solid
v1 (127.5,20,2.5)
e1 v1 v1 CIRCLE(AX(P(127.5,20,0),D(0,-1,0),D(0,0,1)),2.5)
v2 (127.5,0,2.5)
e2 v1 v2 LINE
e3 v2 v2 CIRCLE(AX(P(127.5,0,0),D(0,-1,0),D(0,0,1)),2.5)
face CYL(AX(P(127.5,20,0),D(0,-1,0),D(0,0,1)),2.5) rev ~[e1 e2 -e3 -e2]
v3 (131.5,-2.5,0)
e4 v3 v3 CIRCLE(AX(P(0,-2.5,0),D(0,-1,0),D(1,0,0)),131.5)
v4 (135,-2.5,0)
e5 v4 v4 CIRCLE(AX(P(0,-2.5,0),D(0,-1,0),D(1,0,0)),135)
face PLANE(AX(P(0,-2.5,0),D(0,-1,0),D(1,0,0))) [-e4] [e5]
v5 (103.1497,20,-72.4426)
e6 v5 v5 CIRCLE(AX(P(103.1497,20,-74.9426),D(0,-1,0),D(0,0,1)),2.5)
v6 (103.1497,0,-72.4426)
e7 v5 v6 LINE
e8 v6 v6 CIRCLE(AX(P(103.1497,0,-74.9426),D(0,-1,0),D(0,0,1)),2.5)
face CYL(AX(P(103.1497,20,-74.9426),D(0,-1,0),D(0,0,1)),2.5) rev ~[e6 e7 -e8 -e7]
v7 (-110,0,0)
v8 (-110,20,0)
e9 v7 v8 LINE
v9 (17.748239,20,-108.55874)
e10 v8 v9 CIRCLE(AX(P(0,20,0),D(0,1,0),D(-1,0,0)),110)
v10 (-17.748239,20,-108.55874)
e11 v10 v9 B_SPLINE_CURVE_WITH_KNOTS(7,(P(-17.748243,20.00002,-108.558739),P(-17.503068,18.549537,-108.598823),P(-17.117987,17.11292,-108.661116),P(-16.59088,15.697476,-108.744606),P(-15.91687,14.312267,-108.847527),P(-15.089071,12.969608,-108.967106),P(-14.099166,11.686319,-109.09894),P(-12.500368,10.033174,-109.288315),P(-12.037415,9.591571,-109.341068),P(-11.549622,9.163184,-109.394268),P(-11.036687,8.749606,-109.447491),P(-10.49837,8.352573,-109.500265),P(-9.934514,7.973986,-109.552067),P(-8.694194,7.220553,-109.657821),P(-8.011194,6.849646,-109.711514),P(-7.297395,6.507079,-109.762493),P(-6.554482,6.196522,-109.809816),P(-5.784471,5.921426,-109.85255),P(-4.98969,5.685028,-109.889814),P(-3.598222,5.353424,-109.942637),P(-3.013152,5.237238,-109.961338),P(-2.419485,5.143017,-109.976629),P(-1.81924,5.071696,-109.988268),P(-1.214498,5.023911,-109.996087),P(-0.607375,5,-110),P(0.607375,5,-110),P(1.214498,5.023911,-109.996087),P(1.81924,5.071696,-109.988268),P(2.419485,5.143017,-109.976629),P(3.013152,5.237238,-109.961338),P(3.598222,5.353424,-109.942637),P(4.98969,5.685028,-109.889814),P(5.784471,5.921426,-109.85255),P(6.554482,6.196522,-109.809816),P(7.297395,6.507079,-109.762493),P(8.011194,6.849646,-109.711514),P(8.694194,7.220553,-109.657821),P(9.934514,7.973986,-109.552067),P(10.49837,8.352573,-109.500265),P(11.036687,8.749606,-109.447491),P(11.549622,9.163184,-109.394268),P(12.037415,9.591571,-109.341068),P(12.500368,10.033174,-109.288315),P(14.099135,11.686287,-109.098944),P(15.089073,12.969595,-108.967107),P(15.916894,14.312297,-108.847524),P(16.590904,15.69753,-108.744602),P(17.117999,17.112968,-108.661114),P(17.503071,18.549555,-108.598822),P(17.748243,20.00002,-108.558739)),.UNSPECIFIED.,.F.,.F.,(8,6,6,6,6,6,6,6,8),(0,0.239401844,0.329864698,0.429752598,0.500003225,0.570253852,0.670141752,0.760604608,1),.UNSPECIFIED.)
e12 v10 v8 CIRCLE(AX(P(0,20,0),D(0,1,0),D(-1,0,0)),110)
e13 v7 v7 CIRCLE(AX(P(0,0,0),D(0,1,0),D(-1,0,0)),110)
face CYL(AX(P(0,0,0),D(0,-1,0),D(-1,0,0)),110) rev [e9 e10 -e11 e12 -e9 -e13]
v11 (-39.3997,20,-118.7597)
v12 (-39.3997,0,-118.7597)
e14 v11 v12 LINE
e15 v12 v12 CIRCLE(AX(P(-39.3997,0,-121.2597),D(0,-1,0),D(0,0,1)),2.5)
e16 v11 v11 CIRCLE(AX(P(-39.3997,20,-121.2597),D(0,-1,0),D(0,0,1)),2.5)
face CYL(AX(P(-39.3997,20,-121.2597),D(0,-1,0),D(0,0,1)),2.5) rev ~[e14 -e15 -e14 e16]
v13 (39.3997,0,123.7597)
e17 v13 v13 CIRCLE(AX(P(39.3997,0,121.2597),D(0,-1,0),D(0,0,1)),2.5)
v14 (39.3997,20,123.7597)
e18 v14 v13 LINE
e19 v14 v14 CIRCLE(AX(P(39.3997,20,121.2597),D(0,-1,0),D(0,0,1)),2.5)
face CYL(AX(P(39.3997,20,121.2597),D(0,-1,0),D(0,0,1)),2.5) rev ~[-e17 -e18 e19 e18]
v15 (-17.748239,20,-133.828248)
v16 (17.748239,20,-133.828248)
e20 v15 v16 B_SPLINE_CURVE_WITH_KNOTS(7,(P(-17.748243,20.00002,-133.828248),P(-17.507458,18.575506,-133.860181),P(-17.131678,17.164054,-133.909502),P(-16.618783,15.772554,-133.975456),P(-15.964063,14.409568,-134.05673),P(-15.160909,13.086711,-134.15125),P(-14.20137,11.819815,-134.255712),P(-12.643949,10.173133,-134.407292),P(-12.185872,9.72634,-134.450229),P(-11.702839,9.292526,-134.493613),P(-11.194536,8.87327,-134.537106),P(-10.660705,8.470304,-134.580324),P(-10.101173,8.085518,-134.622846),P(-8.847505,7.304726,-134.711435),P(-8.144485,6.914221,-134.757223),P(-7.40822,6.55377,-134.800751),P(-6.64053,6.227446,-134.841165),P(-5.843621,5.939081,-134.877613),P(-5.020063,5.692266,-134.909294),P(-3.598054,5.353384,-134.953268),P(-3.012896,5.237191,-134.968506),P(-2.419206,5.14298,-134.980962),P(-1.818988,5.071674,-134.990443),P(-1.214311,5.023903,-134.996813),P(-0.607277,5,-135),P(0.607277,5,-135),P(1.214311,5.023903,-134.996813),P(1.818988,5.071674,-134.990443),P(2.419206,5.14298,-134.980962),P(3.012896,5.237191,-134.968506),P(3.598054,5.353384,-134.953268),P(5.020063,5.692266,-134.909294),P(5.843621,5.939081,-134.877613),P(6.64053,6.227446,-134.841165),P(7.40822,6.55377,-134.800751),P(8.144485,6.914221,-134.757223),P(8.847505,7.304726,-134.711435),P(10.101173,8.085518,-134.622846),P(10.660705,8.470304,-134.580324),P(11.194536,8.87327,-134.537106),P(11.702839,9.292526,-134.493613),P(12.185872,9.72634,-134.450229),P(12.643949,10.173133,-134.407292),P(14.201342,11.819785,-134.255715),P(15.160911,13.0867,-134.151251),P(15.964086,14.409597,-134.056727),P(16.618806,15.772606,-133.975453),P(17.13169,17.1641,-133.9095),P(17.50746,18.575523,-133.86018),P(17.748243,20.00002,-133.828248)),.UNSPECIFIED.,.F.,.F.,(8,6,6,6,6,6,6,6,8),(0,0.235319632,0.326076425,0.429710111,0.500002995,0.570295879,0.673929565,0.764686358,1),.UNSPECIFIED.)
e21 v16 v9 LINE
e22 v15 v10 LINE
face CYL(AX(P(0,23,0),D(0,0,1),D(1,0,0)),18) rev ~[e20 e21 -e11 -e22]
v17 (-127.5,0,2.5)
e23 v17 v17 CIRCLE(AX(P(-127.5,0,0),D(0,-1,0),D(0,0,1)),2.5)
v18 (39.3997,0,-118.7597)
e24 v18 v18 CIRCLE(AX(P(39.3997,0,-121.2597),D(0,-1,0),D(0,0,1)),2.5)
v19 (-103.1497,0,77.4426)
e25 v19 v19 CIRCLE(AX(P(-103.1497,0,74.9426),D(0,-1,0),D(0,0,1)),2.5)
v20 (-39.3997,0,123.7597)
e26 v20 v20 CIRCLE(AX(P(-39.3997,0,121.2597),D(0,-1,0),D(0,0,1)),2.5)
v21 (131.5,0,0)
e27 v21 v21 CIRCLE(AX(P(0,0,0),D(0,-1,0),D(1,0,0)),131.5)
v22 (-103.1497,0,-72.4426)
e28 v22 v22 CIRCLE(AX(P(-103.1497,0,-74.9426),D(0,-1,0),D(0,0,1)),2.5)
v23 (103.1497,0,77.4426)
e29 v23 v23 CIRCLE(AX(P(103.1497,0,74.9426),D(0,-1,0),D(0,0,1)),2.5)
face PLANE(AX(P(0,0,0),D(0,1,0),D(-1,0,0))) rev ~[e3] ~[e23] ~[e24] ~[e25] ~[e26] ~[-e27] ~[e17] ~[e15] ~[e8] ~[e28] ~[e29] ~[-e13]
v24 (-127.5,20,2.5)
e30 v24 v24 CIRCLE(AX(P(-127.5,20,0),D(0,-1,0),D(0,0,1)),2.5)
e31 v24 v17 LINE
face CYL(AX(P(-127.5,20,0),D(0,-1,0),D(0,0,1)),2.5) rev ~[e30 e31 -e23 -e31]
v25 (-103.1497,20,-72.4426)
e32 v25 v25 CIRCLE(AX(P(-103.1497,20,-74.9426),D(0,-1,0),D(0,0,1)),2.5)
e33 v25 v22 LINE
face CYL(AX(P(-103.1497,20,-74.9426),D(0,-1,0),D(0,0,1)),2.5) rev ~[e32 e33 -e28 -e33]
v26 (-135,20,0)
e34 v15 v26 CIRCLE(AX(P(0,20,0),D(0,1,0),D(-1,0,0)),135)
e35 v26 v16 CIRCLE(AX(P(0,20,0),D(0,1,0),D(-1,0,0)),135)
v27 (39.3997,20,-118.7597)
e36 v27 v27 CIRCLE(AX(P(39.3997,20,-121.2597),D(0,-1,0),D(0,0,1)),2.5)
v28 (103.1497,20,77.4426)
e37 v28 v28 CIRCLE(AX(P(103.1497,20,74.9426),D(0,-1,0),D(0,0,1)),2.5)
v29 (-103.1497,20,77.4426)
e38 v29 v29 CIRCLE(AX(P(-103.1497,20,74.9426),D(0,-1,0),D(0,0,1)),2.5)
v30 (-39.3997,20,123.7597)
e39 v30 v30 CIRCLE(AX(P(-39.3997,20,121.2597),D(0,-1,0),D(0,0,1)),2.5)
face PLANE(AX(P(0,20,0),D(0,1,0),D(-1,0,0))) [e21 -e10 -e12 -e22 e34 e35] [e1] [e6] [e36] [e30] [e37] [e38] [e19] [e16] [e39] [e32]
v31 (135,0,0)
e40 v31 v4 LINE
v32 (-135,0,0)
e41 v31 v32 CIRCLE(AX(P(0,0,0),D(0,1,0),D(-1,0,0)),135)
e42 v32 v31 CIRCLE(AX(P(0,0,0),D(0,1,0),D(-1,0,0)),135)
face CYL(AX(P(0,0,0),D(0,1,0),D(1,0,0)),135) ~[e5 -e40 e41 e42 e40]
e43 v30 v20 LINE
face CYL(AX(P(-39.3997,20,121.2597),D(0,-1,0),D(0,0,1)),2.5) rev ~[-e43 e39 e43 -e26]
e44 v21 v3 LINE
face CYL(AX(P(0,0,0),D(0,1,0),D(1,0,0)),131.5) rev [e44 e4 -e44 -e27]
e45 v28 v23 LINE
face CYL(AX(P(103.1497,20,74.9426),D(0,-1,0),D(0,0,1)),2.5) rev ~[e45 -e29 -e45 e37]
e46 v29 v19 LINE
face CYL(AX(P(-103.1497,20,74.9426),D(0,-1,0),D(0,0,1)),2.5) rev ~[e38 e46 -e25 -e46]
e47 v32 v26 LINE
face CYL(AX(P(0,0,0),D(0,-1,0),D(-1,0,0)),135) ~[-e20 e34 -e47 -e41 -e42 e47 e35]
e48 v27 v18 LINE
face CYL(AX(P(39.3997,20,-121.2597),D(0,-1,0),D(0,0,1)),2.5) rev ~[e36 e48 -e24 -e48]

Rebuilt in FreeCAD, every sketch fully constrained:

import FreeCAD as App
import Part
import Sketcher

V = App.Vector

doc = App.newDocument("Part")
body = doc.addObject("PartDesign::Body", "Body")

# Sketch on XZ plane
sketch1 = body.newObject("Sketcher::SketchObject", "Sketch")
sketch1.AttachmentSupport = (doc.getObject("XZ_Plane"), [""])
sketch1.MapMode = "FlatFace"
sketch1.addGeometry([
    Part.Circle(V(0, 0, 0), V(0, 0, 1), 135),
    Part.Circle(V(0, 0, 0), V(0, 0, 1), 110),
], False)
sketch1.addConstraint([
    Sketcher.Constraint("Coincident", 0, 3, -1, 1),
    Sketcher.Constraint("Coincident", 1, 3, -1, 1),
    Sketcher.Constraint("Diameter", 0, 270.0),
    Sketcher.Constraint("Diameter", 1, 220.0),
])
pad1 = body.newObject("PartDesign::Pad", "Pad")
pad1.Profile = sketch1
pad1.Length = 20
pad1.Reversed = True

# Sketch on XY plane
sketch2 = body.newObject("Sketcher::SketchObject", "Sketch001")
sketch2.AttachmentSupport = (doc.getObject("XY_Plane"), [""])
sketch2.MapMode = "FlatFace"
sketch2.addGeometry(Part.Circle(V(0, 23, 0), V(0, 0, 1), 18), False)
sketch2.addConstraint([
    Sketcher.Constraint("PointOnObject", 0, 3, -2),
    Sketcher.Constraint("Diameter", 0, 36.0),
    Sketcher.Constraint("DistanceY", -1, 1, 0, 3, 23.0),
])
pocket1 = body.newObject("PartDesign::Pocket", "Pocket")
pocket1.Profile = sketch2
pocket1.Type = "ThroughAll"

# Sketch on XZ plane
sketch3 = body.newObject("Sketcher::SketchObject", "Sketch002")
sketch3.AttachmentSupport = (doc.getObject("XZ_Plane"), [""])
sketch3.MapMode = "FlatFace"
sketch3.AttachmentOffset = App.Placement(V(0, 0, -20), App.Rotation())
sketch3.addGeometry([
    Part.Circle(V(103.1, 74.9, 0), V(0, 0, 1), 2.5),  # 0
    Part.Circle(V(127.5, 0, 0), V(0, 0, 1), 2.5),  # 1
    Part.Circle(V(103.1, -74.9, 0), V(0, 0, 1), 2.5),  # 2
    Part.Circle(V(39.4, -121.3, 0), V(0, 0, 1), 2.5),  # 3
    Part.Circle(V(-39.4, -121.3, 0), V(0, 0, 1), 2.5),  # 4
    Part.Circle(V(-103.1, -74.9, 0), V(0, 0, 1), 2.5),  # 5
    Part.Circle(V(-127.5, 0, 0), V(0, 0, 1), 2.5),  # 6
    Part.Circle(V(-103.1, 74.9, 0), V(0, 0, 1), 2.5),  # 7
    Part.Circle(V(-39.4, 121.3, 0), V(0, 0, 1), 2.5),  # 8
    Part.Circle(V(39.4, 121.3, 0), V(0, 0, 1), 2.5),  # 9
], False)
sketch3.addConstraint([
    Sketcher.Constraint("Equal", 0, 1),
    Sketcher.Constraint("Equal", 1, 2),
    Sketcher.Constraint("Equal", 2, 3),
    Sketcher.Constraint("Equal", 3, 4),
    Sketcher.Constraint("Equal", 4, 5),
    Sketcher.Constraint("Equal", 5, 6),
    Sketcher.Constraint("Equal", 6, 7),
    Sketcher.Constraint("Equal", 7, 8),
    Sketcher.Constraint("Equal", 8, 9),
    Sketcher.Constraint("Symmetric", 0, 3, 5, 3, -1, 1),
    Sketcher.Constraint("Symmetric", 1, 3, 6, 3, -1, 1),
    Sketcher.Constraint("Symmetric", 2, 3, 7, 3, -1, 1),
    Sketcher.Constraint("Symmetric", 3, 3, 8, 3, -1, 1),
    Sketcher.Constraint("Symmetric", 4, 3, 9, 3, -1, 1),
    Sketcher.Constraint("Symmetric", 3, 3, 4, 3, -2),
    Sketcher.Constraint("Symmetric", 2, 3, 5, 3, -2),
    Sketcher.Constraint("PointOnObject", 1, 3, -1),
    Sketcher.Constraint("Diameter", 0, 5.0),
    Sketcher.Constraint("DistanceX", -1, 1, 1, 3, 127.5),
    Sketcher.Constraint("DistanceX", 3, 3, 2, 3, 63.75),
    Sketcher.Constraint("DistanceY", 3, 3, 2, 3, 46.317),
    Sketcher.Constraint("DistanceX", -1, 1, 0, 3, 103.1497),
    Sketcher.Constraint("DistanceY", -1, 1, 0, 3, 74.9426),
])
doc.recompute()
hole = body.newObject("PartDesign::Hole", "Hole")
hole.Profile = sketch3
hole.ThreadType = "None"
hole.Diameter = 5
hole.DepthType = "ThroughAll"
hole.Reversed = True

# Sketch on XZ plane
sketch4 = body.newObject("Sketcher::SketchObject", "Sketch003")
sketch4.AttachmentSupport = (doc.getObject("XZ_Plane"), [""])
sketch4.MapMode = "FlatFace"
sketch4.addGeometry([
    Part.Circle(V(0, 0, 0), V(0, 0, 1), 135),
    Part.Circle(V(0, 0, 0), V(0, 0, 1), 132),
], False)
sketch4.addConstraint([
    Sketcher.Constraint("Coincident", 0, 3, -1, 1),
    Sketcher.Constraint("Coincident", 1, 3, -1, 1),
    Sketcher.Constraint("Diameter", 1, 263.0),
    Sketcher.Constraint("Diameter", 0, 270.0),
])
pad2 = body.newObject("PartDesign::Pad", "Pad001")
pad2.Profile = sketch4
pad2.Length = 2.5

doc.recompute()
